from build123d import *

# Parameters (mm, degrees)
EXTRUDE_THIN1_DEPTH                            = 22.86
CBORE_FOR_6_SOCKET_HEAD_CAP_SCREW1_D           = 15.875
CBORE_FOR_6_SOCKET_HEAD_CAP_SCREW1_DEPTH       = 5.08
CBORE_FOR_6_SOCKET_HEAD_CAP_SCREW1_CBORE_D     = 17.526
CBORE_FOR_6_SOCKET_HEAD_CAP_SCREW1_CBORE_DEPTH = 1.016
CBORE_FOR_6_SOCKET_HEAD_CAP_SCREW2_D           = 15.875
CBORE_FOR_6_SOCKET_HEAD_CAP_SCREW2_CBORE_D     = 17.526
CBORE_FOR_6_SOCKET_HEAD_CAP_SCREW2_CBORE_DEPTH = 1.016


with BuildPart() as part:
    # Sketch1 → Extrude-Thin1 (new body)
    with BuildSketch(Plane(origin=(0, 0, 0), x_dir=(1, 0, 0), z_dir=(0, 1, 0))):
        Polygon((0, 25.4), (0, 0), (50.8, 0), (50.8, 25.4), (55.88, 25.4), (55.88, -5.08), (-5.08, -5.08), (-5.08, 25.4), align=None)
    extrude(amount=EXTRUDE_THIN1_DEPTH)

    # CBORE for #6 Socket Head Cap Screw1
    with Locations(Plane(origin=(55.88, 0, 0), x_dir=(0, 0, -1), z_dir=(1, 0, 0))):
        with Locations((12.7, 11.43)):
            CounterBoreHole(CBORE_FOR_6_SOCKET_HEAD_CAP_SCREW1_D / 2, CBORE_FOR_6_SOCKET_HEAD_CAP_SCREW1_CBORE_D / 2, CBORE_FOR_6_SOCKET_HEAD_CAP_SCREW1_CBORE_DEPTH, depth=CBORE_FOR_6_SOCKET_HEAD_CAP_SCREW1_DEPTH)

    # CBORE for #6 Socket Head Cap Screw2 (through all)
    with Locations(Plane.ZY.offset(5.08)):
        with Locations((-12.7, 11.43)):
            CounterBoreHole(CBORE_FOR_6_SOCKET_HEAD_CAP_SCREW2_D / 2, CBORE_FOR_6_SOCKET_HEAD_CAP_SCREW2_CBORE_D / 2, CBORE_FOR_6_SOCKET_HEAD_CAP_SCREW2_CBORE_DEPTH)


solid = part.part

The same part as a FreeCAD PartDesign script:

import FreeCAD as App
import Part
import Sketcher

V = App.Vector
Q = App.Units.Quantity


def add_polygon(sketch, points):
    """Adds a closed chain of lines whose ends are joined by coincident constraints."""
    first, n = sketch.GeometryCount, len(points)
    for a, b in zip(points, points[1:] + points[:1]):
        sketch.addGeometry(Part.LineSegment(App.Vector(*a, 0), App.Vector(*b, 0)), False)
    for i in range(n):
        sketch.addConstraint(Sketcher.Constraint("Coincident", first + i, 2, first + (i + 1) % n, 1))

doc = App.newDocument("Part")
body = doc.addObject("PartDesign::Body", "Body")

sketch1 = body.newObject("Sketcher::SketchObject", "Sketch")
sketch1.AttachmentSupport = (doc.getObject("XZ_Plane"), [""])
sketch1.MapMode = "FlatFace"
add_polygon(sketch1, [(0, 0), (0, -25.4), (-5.08, -25.4), (-5.08, 5.08), (55.88, 5.08), (55.88, -25.4), (50.8, -25.4), (50.8, 0)])
sketch1.addConstraint([
    Sketcher.Constraint("Vertical", 0),
    Sketcher.Constraint("Horizontal", 1),
    Sketcher.Constraint("Vertical", 2),
    Sketcher.Constraint("Horizontal", 3),
    Sketcher.Constraint("Vertical", 4),
    Sketcher.Constraint("Horizontal", 5),
    Sketcher.Constraint("Vertical", 6),
    Sketcher.Constraint("Horizontal", 7),
    Sketcher.Constraint("Coincident", 7, 2, -1, 1),
    Sketcher.Constraint("Horizontal", 1, 2, 4, 2),
    Sketcher.Constraint("Equal", 1, 5),
    Sketcher.Constraint("DistanceX", 7, 2, 7, 1, Q("2 in")),
    Sketcher.Constraint("DistanceY", 0, 2, 0, 1, Q("1 in")),
    Sketcher.Constraint("DistanceX", 1, 2, 1, 1, Q("0.2 in")),
    Sketcher.Constraint("DistanceY", 2, 1, 2, 2, Q("1.2 in")),
])
pad1 = body.newObject("PartDesign::Pad", "Pad")
pad1.Profile = sketch1
pad1.Length = Q("0.9 in")
pad1.Reversed = True

sketch2 = body.newObject("Sketcher::SketchObject", "Sketch001")
sketch2.AttachmentSupport = (doc.getObject("YZ_Plane"), [""])
sketch2.MapMode = "FlatFace"
sketch2.AttachmentOffset = App.Placement(V(0, 0, 2.2 * 25.4), App.Rotation())
sketch2.addGeometry(Part.Circle(V(11.43, -12.7, 0), V(0, 0, 1), 7.9375), False)
sketch2.addConstraint([
    Sketcher.Constraint("Diameter", 0, Q("0.625 in")),
    Sketcher.Constraint("DistanceY", 0, 3, -1, 1, Q("0.5 in")),
    Sketcher.Constraint("DistanceX", -1, 1, 0, 3, Q("0.45 in")),
])
doc.recompute()
hole = body.newObject("PartDesign::Hole", "Hole")
hole.Profile = sketch2
hole.ThreadType = "None"
hole.Diameter = Q("0.625 in")
hole.DepthType = "Dimension"
hole.Depth = Q("0.2 in")
hole.DrillPoint = "Flat"
hole.HoleCutType = "Counterbore"
hole.HoleCutDiameter = Q("0.69 in")
hole.HoleCutDepth = Q("0.04 in")

sketch3 = body.newObject("Sketcher::SketchObject", "Sketch002")
sketch3.AttachmentSupport = (doc.getObject("YZ_Plane"), [""])
sketch3.MapMode = "FlatFace"
sketch3.AttachmentOffset = App.Placement(V(0, 0, -0.2 * 25.4), App.Rotation())
sketch3.addGeometry(Part.Circle(V(11.43, -12.7, 0), V(0, 0, 1), 7.9375), False)
sketch3.addConstraint([
    Sketcher.Constraint("Diameter", 0, Q("0.625 in")),
    Sketcher.Constraint("DistanceY", 0, 3, -1, 1, Q("0.5 in")),
    Sketcher.Constraint("DistanceX", -1, 1, 0, 3, Q("0.45 in")),
])
doc.recompute()
hole2 = body.newObject("PartDesign::Hole", "Hole001")
hole2.Profile = sketch3
hole2.ThreadType = "None"
hole2.Diameter = Q("0.625 in")
hole2.DepthType = "ThroughAll"
hole2.HoleCutType = "Counterbore"
hole2.HoleCutDiameter = Q("0.69 in")
hole2.HoleCutDepth = Q("0.04 in")
hole2.Reversed = True

doc.recompute()
